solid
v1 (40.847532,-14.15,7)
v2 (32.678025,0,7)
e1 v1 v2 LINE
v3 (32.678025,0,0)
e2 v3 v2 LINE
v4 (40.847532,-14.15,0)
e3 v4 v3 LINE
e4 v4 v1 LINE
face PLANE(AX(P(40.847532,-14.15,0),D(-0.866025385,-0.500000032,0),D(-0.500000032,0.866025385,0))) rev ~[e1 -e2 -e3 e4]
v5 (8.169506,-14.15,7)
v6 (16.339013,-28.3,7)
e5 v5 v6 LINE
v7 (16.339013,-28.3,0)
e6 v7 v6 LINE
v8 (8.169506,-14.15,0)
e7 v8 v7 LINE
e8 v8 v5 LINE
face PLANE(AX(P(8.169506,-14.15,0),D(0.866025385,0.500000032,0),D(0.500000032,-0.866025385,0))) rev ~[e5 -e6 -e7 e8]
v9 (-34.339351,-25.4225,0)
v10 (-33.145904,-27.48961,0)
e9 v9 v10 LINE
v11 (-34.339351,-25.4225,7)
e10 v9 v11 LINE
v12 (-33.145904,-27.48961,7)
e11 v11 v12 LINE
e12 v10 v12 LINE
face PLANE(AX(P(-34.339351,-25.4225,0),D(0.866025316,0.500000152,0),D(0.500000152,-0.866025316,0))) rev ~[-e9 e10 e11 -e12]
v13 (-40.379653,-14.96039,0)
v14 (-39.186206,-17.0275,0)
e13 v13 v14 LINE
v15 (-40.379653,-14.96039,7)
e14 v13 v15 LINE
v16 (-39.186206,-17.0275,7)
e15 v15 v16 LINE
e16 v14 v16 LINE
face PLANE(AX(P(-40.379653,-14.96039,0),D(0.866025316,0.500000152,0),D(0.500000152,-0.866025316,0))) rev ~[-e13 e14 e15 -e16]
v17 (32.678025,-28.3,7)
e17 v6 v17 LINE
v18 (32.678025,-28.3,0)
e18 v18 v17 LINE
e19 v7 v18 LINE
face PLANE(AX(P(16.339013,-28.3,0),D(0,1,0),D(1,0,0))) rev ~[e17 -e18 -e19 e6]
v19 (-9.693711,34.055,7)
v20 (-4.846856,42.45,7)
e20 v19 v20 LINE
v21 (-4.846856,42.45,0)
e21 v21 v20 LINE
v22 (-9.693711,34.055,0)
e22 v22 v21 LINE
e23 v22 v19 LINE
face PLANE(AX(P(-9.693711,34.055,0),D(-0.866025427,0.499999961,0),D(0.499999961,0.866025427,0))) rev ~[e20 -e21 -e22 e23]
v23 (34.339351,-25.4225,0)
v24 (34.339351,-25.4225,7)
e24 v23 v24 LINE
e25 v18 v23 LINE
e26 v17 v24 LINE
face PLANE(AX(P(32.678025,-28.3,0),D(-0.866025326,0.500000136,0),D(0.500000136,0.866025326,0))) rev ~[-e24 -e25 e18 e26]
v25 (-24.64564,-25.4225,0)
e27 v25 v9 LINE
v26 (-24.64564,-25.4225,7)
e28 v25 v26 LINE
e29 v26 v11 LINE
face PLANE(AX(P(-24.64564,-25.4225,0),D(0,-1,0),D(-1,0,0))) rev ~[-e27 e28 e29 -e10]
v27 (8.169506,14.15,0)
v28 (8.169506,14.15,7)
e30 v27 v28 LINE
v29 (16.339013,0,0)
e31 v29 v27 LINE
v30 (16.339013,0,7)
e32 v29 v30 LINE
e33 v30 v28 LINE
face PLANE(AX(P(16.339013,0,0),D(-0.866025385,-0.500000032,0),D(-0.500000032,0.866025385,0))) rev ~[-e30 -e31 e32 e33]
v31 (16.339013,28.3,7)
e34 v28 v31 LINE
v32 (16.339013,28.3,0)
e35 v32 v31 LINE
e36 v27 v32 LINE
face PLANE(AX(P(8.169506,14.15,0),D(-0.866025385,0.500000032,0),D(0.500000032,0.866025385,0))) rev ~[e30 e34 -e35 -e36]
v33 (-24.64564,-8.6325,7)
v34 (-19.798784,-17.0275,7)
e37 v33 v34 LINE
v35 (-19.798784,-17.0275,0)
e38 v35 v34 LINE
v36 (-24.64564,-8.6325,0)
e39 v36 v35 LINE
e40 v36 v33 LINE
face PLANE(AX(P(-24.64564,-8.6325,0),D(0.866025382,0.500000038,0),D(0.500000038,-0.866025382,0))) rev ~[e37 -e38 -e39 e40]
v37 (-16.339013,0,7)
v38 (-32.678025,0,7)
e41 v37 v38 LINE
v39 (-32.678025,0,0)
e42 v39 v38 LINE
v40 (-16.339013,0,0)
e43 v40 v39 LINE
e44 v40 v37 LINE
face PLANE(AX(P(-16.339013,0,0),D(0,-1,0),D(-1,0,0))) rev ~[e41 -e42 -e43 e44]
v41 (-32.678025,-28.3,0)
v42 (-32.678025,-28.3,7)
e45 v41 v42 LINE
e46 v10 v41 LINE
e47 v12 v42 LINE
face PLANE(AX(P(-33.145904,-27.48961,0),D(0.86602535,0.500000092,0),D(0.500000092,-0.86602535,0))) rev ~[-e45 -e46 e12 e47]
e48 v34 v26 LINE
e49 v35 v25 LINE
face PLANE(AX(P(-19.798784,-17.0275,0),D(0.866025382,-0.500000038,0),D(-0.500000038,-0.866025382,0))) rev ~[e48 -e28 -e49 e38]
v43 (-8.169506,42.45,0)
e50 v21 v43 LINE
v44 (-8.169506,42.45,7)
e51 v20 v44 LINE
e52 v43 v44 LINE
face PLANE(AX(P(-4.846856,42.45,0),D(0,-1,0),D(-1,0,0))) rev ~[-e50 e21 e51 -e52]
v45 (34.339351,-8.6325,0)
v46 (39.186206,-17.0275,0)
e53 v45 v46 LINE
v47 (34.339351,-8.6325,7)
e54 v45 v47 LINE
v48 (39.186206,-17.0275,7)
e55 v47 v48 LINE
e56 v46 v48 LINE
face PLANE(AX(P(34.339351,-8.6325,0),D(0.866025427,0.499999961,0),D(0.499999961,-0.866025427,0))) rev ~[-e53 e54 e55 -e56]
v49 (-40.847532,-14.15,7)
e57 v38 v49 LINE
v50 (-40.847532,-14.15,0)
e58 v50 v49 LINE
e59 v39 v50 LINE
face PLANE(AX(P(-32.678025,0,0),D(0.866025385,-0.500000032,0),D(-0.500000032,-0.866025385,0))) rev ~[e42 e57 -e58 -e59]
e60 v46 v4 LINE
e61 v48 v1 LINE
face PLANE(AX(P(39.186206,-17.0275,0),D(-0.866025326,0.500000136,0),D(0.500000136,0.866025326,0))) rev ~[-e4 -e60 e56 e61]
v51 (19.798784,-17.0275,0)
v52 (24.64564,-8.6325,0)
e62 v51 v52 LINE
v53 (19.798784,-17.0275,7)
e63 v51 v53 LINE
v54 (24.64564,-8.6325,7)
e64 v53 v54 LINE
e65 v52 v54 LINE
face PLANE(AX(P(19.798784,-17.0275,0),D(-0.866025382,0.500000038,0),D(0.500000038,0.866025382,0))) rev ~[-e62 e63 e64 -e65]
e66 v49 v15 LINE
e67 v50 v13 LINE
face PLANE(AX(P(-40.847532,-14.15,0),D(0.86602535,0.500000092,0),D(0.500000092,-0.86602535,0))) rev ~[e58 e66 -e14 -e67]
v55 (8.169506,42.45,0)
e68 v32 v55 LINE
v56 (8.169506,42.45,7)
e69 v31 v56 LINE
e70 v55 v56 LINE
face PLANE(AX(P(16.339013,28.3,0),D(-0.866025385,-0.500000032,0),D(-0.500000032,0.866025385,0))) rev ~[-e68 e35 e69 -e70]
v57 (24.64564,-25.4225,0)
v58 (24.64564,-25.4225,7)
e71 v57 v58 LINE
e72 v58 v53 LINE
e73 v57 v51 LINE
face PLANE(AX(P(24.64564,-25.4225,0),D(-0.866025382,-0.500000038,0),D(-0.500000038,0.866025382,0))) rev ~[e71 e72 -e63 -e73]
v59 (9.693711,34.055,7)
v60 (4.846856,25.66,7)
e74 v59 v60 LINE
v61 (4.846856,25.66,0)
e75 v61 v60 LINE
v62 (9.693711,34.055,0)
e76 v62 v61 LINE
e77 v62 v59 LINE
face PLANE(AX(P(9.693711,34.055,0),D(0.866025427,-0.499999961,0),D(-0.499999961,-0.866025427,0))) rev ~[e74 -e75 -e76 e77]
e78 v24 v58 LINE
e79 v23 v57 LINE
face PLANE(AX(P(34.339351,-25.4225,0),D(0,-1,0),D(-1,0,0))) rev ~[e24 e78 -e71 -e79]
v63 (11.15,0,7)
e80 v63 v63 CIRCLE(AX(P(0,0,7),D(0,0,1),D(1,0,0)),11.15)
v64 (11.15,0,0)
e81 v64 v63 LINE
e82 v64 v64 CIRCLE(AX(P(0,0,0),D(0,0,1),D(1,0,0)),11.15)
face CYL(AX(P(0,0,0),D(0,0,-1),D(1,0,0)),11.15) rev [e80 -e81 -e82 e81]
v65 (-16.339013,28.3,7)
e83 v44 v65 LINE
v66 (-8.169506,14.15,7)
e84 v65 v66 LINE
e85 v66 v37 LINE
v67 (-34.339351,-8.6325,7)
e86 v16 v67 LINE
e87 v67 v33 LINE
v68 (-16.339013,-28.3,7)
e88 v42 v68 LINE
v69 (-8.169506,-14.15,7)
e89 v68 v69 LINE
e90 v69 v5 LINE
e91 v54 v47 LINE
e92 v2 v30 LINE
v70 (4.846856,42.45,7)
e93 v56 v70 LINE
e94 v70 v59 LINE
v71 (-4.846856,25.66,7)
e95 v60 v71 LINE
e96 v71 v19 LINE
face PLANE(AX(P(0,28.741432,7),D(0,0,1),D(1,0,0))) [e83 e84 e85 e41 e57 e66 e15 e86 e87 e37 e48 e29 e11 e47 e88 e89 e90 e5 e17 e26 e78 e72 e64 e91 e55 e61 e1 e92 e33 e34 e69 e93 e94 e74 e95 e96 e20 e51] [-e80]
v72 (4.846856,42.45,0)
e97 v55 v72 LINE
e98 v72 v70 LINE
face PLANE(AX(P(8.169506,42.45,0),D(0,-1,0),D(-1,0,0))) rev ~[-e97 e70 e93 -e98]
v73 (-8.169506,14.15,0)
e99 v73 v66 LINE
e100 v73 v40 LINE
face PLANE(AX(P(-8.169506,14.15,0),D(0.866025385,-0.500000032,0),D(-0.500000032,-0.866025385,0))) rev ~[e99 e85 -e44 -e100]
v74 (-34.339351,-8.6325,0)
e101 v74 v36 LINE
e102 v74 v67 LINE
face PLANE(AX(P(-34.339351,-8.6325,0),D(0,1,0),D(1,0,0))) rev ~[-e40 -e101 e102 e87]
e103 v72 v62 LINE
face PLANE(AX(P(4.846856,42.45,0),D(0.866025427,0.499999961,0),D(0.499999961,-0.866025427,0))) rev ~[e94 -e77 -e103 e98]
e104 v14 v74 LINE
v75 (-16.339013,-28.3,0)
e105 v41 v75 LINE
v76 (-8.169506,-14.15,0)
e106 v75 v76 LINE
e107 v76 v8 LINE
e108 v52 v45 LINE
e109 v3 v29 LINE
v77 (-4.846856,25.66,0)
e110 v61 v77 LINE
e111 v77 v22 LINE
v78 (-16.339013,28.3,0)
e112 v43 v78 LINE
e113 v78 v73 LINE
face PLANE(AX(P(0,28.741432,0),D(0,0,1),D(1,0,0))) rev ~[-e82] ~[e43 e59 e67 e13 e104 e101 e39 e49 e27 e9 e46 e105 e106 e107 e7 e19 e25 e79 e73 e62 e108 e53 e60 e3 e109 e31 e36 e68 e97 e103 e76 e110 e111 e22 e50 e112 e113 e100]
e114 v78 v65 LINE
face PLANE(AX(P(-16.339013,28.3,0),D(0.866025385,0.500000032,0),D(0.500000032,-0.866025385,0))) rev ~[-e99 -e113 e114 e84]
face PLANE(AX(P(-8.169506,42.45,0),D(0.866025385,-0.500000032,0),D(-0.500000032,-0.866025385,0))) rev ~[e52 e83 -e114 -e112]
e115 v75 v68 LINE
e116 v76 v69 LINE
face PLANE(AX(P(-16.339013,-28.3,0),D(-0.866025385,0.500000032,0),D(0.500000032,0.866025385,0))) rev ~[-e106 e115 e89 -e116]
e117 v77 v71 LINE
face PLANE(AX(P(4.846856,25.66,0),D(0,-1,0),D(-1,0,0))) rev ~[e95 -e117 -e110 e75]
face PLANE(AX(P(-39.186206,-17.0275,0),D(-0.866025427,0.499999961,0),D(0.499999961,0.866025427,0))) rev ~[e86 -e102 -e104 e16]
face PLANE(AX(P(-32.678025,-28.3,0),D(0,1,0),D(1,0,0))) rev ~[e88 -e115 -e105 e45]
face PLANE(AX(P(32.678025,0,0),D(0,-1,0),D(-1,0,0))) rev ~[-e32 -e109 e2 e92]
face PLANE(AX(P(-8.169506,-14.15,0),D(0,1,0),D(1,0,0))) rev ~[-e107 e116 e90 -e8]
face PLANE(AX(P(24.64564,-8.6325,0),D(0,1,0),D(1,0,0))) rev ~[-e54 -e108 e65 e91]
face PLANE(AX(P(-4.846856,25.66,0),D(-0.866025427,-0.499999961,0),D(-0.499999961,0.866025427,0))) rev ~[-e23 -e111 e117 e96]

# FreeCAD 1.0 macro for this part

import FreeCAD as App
import Part
import Sketcher

V = App.Vector
Q = App.Units.Quantity


def add_polygon(sketch, points):
    """Adds a closed chain of lines whose ends are joined by coincident constraints."""
    first, n = sketch.GeometryCount, len(points)
    for a, b in zip(points, points[1:] + points[:1]):
        sketch.addGeometry(Part.LineSegment(App.Vector(*a, 0), App.Vector(*b, 0)), False)
    for i in range(n):
        sketch.addConstraint(Sketcher.Constraint("Coincident", first + i, 2, first + (i + 1) % n, 1))

doc = App.newDocument("Part")
body = doc.addObject("PartDesign::Body", "Body")

sketch1 = body.newObject("Sketcher::SketchObject", "Sketch")
sketch1.AttachmentSupport = (doc.getObject("XY_Plane"), [""])
sketch1.MapMode = "FlatFace"
add_polygon(sketch1, [(-16.3, 28.3), (-8.2, 14.2), (-16.3, 0), (-32.7, 0), (-40.8, -14.2), (-40.4, -15), (-39.2, -17), (-34.3, -8.6), (-24.6, -8.6), (-19.8, -17), (-24.6, -25.4), (-34.3, -25.4), (-33.1, -27.5), (-32.7, -28.3), (-16.3, -28.3), (-8.2, -14.2), (8.2, -14.2), (16.3, -28.3), (32.7, -28.3), (34.3, -25.4), (24.6, -25.4), (19.8, -17), (24.6, -8.6), (34.3, -8.6), (39.2, -17), (40.8, -14.2), (32.7, 0), (16.3, 0), (8.2, 14.2), (16.3, 28.3), (8.2, 42.5), (4.8, 42.5), (9.7, 34.1), (4.8, 25.7), (-4.8, 25.7), (-9.7, 34.1), (-4.8, 42.5), (-8.2, 42.5)])
sketch1.addGeometry(Part.Circle(V(0, 0, 0), V(0, 0, 1), 11.2), False)
sketch1.addConstraint(Sketcher.Constraint("Horizontal", 2))
sketch1.addConstraint(Sketcher.Constraint("Horizontal", 7))
sketch1.addConstraint(Sketcher.Constraint("Horizontal", 10))
sketch1.addConstraint(Sketcher.Constraint("Horizontal", 13))
sketch1.addConstraint(Sketcher.Constraint("Horizontal", 15))
sketch1.addConstraint(Sketcher.Constraint("Horizontal", 17))
sketch1.addConstraint(Sketcher.Constraint("Horizontal", 19))
sketch1.addConstraint(Sketcher.Constraint("Horizontal", 22))
sketch1.addConstraint(Sketcher.Constraint("Horizontal", 26))
sketch1.addConstraint(Sketcher.Constraint("Horizontal", 30))
sketch1.addConstraint(Sketcher.Constraint("Horizontal", 33))
sketch1.addConstraint(Sketcher.Constraint("Horizontal", 36))
sketch1.addConstraint(Sketcher.Constraint("Coincident", 38, 3, -1, 1))
sketch1.addConstraint(Sketcher.Constraint("Symmetric", 0, 2, 15, 2, -1, 1))
sketch1.addConstraint(Sketcher.Constraint("Symmetric", 2, 2, 25, 2, -1, 1))
sketch1.addConstraint(Sketcher.Constraint("Symmetric", 14, 2, 27, 2, -1, 1))
sketch1.addConstraint(Sketcher.Constraint("Symmetric", 13, 2, 28, 2, -1, 1))
sketch1.addConstraint(Sketcher.Constraint("Symmetric", 16, 2, 37, 2, -1, 1))
sketch1.addConstraint(Sketcher.Constraint("Symmetric", 13, 2, 16, 2, -2))
sketch1.addConstraint(Sketcher.Constraint("Symmetric", 10, 2, 18, 2, -2))
sketch1.addConstraint(Sketcher.Constraint("Symmetric", 8, 2, 20, 2, -2))
sketch1.addConstraint(Sketcher.Constraint("Symmetric", 7, 2, 21, 2, -2))
sketch1.addConstraint(Sketcher.Constraint("Symmetric", 5, 2, 23, 2, -2))
sketch1.addConstraint(Sketcher.Constraint("Symmetric", 3, 2, 24, 2, -2))
sketch1.addConstraint(Sketcher.Constraint("Symmetric", 1, 2, 26, 2, -2))
sketch1.addConstraint(Sketcher.Constraint("Symmetric", 31, 2, 34, 2, -2))
sketch1.addConstraint(Sketcher.Constraint("Symmetric", 30, 2, 35, 2, -2))
sketch1.addConstraint(Sketcher.Constraint("Parallel", 1, 3))
sketch1.addConstraint(Sketcher.Constraint("Parallel", 0, 4))
sketch1.addConstraint(Sketcher.Constraint("Parallel", 4, 5))
sketch1.addConstraint(Sketcher.Constraint("Parallel", 3, 6))
sketch1.addConstraint(Sketcher.Constraint("Parallel", 5, 8))
sketch1.addConstraint(Sketcher.Constraint("Parallel", 6, 9))
sketch1.addConstraint(Sketcher.Constraint("Parallel", 8, 11))
sketch1.addConstraint(Sketcher.Constraint("Parallel", 11, 12))
sketch1.addConstraint(Sketcher.Constraint("Parallel", 9, 14))
sketch1.addConstraint(Sketcher.Constraint("Parallel", 14, 18))
sketch1.addConstraint(Sketcher.Constraint("Parallel", 16, 20))
sketch1.addConstraint(Sketcher.Constraint("Parallel", 18, 21))
sketch1.addConstraint(Sketcher.Constraint("Parallel", 20, 23))
sketch1.addConstraint(Sketcher.Constraint("Parallel", 27, 29))
sketch1.addConstraint(Sketcher.Constraint("Parallel", 29, 31))
sketch1.addConstraint(Sketcher.Constraint("Parallel", 28, 32))
sketch1.addConstraint(Sketcher.Constraint("Parallel", 31, 34))
sketch1.addConstraint(Sketcher.Constraint("Parallel", 35, 37))
sketch1.addConstraint(Sketcher.Constraint("Horizontal", 5, 2, 8, 2))
sketch1.addConstraint(Sketcher.Constraint("Horizontal", 3, 2, 14, 2))
sketch1.addConstraint(Sketcher.Constraint("Vertical", 7, 2, 9, 2))
sketch1.addConstraint(Sketcher.Constraint("Vertical", 6, 2, 10, 2))
sketch1.addConstraint(Sketcher.Constraint("Vertical", 2, 2, 12, 2))
sketch1.addConstraint(Sketcher.Constraint("Vertical", 27, 2, 29, 2))
sketch1.addConstraint(Sketcher.Constraint("Vertical", 30, 2, 32, 2))
sketch1.addConstraint(Sketcher.Constraint("Equal", 13, 15))
sketch1.addConstraint(Sketcher.Constraint("Equal", 22, 33))
sketch1.addConstraint(Sketcher.Constraint("Equal", 5, 11))
sketch1.addConstraint(Sketcher.Constraint("Equal", 4, 12))
sketch1.addConstraint(Sketcher.Constraint("Equal", 23, 31))
sketch1.addConstraint(Sketcher.Constraint("Diameter", 38, 22.3))
sketch1.addConstraint(Sketcher.Constraint("Angle", 0, Q("-59.999998 deg")))
sketch1.addConstraint(Sketcher.Constraint("DistanceY", 12, 2, -1, 1, 28.3))
sketch1.addConstraint(Sketcher.Constraint("DistanceY", -1, 1, 32, 2, 25.66))
sketch1.addConstraint(Sketcher.Constraint("DistanceX", 2, 2, 2, 1, 16.339012))
sketch1.addConstraint(Sketcher.Constraint("DistanceX", 7, 1, 7, 2, 9.693711))
sketch1.addConstraint(Sketcher.Constraint("DistanceX", 4, 2, 6, 2, 6.040302))
pad1 = body.newObject("PartDesign::Pad", "Pad")
pad1.Profile = sketch1
pad1.Length = 7

doc.recompute()
